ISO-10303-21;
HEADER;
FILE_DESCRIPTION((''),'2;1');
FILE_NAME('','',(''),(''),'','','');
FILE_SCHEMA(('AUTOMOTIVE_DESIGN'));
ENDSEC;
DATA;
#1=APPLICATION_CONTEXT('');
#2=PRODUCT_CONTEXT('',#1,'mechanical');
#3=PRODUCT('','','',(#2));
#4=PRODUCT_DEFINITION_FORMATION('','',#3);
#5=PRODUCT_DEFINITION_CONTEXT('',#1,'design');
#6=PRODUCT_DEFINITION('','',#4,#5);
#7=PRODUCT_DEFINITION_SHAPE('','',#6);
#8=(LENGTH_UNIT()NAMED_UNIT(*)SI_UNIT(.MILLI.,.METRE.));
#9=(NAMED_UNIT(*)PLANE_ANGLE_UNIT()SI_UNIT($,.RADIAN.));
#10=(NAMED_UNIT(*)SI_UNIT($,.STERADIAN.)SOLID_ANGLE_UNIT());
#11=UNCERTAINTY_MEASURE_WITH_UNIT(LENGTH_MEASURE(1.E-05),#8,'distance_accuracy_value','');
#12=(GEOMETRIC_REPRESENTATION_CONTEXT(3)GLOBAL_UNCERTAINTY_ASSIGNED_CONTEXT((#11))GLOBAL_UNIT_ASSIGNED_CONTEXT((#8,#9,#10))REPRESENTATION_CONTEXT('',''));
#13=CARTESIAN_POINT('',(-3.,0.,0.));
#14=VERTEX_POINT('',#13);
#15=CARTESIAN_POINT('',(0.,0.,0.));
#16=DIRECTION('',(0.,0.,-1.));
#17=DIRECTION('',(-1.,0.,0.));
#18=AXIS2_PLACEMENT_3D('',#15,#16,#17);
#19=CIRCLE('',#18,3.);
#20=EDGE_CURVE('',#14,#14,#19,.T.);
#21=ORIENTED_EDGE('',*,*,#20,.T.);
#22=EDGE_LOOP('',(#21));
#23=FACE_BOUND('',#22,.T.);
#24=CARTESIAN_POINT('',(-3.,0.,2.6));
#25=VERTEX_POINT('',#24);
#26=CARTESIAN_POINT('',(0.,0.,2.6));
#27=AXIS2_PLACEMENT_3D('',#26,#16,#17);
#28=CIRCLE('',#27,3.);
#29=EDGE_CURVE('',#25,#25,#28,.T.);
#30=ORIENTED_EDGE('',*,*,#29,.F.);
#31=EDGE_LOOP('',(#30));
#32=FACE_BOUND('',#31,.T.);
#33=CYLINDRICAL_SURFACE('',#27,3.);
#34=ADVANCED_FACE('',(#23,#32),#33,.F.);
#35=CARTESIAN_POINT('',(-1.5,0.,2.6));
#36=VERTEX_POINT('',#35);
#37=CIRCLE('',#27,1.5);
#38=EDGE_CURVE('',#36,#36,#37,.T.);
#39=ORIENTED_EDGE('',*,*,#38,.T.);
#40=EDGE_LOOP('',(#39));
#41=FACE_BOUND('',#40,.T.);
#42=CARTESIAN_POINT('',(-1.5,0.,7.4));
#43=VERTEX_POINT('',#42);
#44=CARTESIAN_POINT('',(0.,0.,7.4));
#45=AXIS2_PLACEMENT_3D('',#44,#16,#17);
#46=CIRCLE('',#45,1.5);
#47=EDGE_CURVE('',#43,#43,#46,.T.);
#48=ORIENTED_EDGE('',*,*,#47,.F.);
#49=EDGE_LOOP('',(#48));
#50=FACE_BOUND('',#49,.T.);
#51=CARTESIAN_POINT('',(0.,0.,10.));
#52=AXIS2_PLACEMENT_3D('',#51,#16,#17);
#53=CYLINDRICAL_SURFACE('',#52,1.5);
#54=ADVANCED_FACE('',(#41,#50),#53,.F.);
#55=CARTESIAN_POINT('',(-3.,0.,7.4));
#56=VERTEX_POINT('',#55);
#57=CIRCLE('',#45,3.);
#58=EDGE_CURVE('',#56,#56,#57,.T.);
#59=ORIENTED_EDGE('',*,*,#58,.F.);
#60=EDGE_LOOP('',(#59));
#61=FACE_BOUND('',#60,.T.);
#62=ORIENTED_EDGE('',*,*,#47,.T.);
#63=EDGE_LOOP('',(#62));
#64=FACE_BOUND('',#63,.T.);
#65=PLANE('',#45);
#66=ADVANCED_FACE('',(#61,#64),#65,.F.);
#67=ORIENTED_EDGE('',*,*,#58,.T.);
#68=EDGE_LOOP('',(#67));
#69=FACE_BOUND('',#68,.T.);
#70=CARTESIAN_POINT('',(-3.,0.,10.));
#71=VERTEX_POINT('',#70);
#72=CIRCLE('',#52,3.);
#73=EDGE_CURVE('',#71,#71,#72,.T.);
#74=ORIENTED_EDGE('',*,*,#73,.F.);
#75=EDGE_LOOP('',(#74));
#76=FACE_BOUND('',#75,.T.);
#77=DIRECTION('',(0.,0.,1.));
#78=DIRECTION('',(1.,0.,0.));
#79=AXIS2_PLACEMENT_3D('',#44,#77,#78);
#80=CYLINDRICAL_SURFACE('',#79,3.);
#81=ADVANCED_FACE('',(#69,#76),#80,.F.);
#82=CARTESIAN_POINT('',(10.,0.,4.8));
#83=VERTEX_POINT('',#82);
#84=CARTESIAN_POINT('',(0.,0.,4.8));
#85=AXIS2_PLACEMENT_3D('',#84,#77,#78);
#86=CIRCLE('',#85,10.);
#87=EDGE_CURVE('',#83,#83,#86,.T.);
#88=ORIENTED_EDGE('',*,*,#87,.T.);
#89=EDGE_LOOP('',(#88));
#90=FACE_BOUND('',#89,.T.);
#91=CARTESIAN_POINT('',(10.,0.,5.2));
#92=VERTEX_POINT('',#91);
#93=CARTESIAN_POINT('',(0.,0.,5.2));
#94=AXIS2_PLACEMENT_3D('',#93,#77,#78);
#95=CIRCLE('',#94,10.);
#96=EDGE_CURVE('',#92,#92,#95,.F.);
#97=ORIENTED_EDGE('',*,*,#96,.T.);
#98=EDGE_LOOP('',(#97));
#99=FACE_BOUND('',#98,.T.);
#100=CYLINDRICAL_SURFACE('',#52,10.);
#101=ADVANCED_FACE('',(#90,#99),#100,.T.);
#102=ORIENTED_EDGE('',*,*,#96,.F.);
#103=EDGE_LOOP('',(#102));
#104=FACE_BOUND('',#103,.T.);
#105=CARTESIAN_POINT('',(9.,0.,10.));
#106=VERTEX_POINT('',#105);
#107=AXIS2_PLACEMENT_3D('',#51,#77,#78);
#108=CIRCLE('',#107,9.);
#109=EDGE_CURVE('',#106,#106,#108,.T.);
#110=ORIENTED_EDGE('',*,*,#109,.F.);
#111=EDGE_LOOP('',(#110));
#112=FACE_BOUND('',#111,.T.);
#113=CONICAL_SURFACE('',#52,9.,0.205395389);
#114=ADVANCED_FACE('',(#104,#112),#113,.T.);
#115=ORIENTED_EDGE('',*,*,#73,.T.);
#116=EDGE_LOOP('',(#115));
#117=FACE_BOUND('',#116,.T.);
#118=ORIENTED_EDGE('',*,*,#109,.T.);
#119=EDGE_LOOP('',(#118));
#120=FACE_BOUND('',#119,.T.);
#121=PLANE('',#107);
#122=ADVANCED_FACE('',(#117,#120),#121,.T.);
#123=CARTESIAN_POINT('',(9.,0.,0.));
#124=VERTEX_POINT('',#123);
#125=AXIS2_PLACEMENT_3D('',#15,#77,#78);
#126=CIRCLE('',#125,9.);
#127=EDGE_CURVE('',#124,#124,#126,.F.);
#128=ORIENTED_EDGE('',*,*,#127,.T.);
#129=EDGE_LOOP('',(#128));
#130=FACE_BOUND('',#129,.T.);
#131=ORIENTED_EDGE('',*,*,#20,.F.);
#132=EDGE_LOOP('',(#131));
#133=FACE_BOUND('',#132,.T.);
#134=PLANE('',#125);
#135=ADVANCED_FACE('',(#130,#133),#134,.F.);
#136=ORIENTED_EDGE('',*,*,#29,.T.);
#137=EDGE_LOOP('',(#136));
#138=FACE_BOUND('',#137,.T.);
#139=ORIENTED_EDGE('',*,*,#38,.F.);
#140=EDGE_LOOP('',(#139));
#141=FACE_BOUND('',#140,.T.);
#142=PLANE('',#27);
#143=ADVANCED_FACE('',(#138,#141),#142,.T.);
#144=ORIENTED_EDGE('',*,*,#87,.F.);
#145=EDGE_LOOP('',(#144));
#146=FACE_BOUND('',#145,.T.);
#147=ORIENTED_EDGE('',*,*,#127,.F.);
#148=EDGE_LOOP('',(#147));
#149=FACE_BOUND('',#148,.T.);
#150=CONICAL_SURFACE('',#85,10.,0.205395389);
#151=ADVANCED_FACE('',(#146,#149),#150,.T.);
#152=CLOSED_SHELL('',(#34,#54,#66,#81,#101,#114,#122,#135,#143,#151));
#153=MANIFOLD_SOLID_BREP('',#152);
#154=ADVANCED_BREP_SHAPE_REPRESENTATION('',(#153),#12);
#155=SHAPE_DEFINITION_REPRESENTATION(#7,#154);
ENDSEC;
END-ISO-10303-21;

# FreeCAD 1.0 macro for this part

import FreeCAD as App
import Part
import Sketcher

V = App.Vector


def edges_at(feature, points):
    """Names of the edges that pass closest to the given points."""
    edges = feature.Shape.Edges
    near = lambda p: min(range(len(edges)), key=lambda i: edges[i].distToShape(Part.Vertex(*p))[0])
    return sorted({f"Edge{near(p) + 1}" for p in points})

doc = App.newDocument("Part")
body = doc.addObject("PartDesign::Body", "Body")

# Sketch on XY plane
sketch1 = body.newObject("Sketcher::SketchObject", "Sketch")
sketch1.AttachmentSupport = (doc.getObject("XY_Plane"), [""])
sketch1.MapMode = "FlatFace"
sketch1.addGeometry(Part.Circle(V(0, 0, 0), V(0, 0, 1), 10), False)
sketch1.addConstraint([
    Sketcher.Constraint("Coincident", 0, 3, -1, 1),
    Sketcher.Constraint("Diameter", 0, 20.0),
])
pad1 = body.newObject("PartDesign::Pad", "Pad")
pad1.Profile = sketch1
pad1.Length = 10
doc.recompute()

chamfer = body.newObject("PartDesign::Chamfer", "Chamfer")
chamfer.Base = (pad1, edges_at(pad1, [(-10, 0, 0)]))
chamfer.ChamferType = "Two distances"
chamfer.Size = 1
chamfer.Size2 = 4.8
chamfer.FlipDirection = True
doc.recompute()

chamfer2 = body.newObject("PartDesign::Chamfer", "Chamfer001")
chamfer2.Base = (chamfer, edges_at(chamfer, [(-10, 0, 10)]))
chamfer2.ChamferType = "Two distances"
chamfer2.Size = 4.8
chamfer2.Size2 = 1

# Sketch on XY plane
sketch2 = body.newObject("Sketcher::SketchObject", "Sketch001")
sketch2.AttachmentSupport = (doc.getObject("XY_Plane"), [""])
sketch2.MapMode = "FlatFace"
sketch2.addGeometry(Part.Circle(V(0, 0, 0), V(0, 0, 1), 3), False)
sketch2.addConstraint([
    Sketcher.Constraint("Coincident", 0, 3, -1, 1),
    Sketcher.Constraint("Diameter", 0, 6.0),
])
pocket1 = body.newObject("PartDesign::Pocket", "Pocket")
pocket1.Profile = sketch2
pocket1.Length = 2.6
pocket1.Reversed = True

# Sketch on XY plane
sketch3 = body.newObject("Sketcher::SketchObject", "Sketch002")
sketch3.AttachmentSupport = (doc.getObject("XY_Plane"), [""])
sketch3.MapMode = "FlatFace"
sketch3.AttachmentOffset = App.Placement(V(0, 0, 7.4), App.Rotation())
sketch3.addGeometry(Part.Circle(V(0, 0, 0), V(0, 0, 1), 3), False)
sketch3.addConstraint([
    Sketcher.Constraint("Coincident", 0, 3, -1, 1),
    Sketcher.Constraint("Diameter", 0, 6.0),
])
pocket2 = body.newObject("PartDesign::Pocket", "Pocket001")
pocket2.Profile = sketch3
pocket2.Length = 2.6
pocket2.Reversed = True

# Sketch on XY plane
sketch4 = body.newObject("Sketcher::SketchObject", "Sketch003")
sketch4.AttachmentSupport = (doc.getObject("XY_Plane"), [""])
sketch4.MapMode = "FlatFace"
sketch4.AttachmentOffset = App.Placement(V(0, 0, 2.6), App.Rotation())
sketch4.addGeometry(Part.Circle(V(0, 0, 0), V(0, 0, 1), 1.5), False)
sketch4.addConstraint([
    Sketcher.Constraint("Coincident", 0, 3, -1, 1),
    Sketcher.Constraint("Diameter", 0, 3.0),
])
pocket3 = body.newObject("PartDesign::Pocket", "Pocket002")
pocket3.Profile = sketch4
pocket3.Type = "ThroughAll"
pocket3.Reversed = True

doc.recompute()
